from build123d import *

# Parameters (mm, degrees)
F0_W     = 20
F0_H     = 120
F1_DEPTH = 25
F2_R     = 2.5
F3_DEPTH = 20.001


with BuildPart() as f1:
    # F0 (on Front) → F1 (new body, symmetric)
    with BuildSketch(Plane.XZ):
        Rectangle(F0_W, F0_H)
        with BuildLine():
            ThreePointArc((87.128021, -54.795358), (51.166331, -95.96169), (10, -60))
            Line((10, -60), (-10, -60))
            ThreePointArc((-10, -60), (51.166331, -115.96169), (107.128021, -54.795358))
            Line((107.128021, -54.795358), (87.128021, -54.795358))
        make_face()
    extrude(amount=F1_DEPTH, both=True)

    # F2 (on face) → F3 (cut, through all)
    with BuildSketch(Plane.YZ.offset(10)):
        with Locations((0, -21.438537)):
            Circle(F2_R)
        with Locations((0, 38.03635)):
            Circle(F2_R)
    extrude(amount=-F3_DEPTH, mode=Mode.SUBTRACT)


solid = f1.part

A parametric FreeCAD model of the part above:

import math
import FreeCAD as App
import Part
import Sketcher

V = App.Vector
Q = App.Units.Quantity

doc = App.newDocument("Part")
params = doc.addObject("Spreadsheet::Sheet", "Params")
for row, (alias, value) in enumerate([
    ("sketch1_width", "20 mm"),
    ("sketch1_height", "120 mm"),
    ("pad1_length", "50 mm"),
    ("sketch2_diameter", "5 mm"),
], start=1):
    params.set(f"A{row}", alias)
    params.set(f"B{row}", "=" + value)
    params.setAlias(f"B{row}", alias)

body = doc.addObject("PartDesign::Body", "Body")

sketch1 = body.newObject("Sketcher::SketchObject", "Sketch")
sketch1.AttachmentSupport = (doc.getObject("XZ_Plane"), [""])
sketch1.MapMode = "FlatFace"
sketch1.addGeometry([
    Part.LineSegment(V(-10, 60, 0), V(-10, -60, 0)),
    Part.ArcOfCircle(Part.Circle(V(49, -57, 0), V(0, 0, 1), 59), math.radians(-177), math.radians(3)),
    Part.LineSegment(V(107, -55, 0), V(87, -55, 0)),
    Part.ArcOfCircle(Part.Circle(V(49, -57, 0), V(0, 0, 1), 39), math.radians(-176), math.radians(4)),
    Part.LineSegment(V(10, -60, 0), V(10, 60, 0)),
    Part.LineSegment(V(10, 60, 0), V(-10, 60, 0)),
], False)
sketch1.addConstraint([
    Sketcher.Constraint("Coincident", 0, 2, 1, 1),
    Sketcher.Constraint("Coincident", 1, 2, 2, 1),
    Sketcher.Constraint("Coincident", 2, 2, 3, 2),
    Sketcher.Constraint("Coincident", 3, 1, 4, 1),
    Sketcher.Constraint("Coincident", 4, 2, 5, 1),
    Sketcher.Constraint("Coincident", 5, 2, 0, 1),
    Sketcher.Constraint("Vertical", 0),
    Sketcher.Constraint("Horizontal", 2),
    Sketcher.Constraint("Vertical", 4),
    Sketcher.Constraint("Horizontal", 5),
    Sketcher.Constraint("Coincident", 3, 3, 1, 3),
    Sketcher.Constraint("Symmetric", 0, 2, 4, 2, -1, 1),
    Sketcher.Constraint("Horizontal", 0, 2, 3, 1),
    Sketcher.Constraint("Equal", 2, 5),
    Sketcher.Constraint("DistanceX", 2, 2, 2, 1, Q("20 mm")),
    Sketcher.Constraint("DistanceY", 0, 2, 0, 1, Q("120 mm")),
    Sketcher.Constraint("Radius", 1, Q("58.6218 mm")),
    Sketcher.Constraint("Radius", 3, Q("38.651714 mm")),
])
sketch1.setExpression("Constraints[14]", "Params.sketch1_width")
sketch1.setExpression("Constraints[15]", "Params.sketch1_height")
pad1 = body.newObject("PartDesign::Pad", "Pad")
pad1.Profile = sketch1
pad1.setExpression("Length", "Params.pad1_length")
pad1.Midplane = True

sketch2 = body.newObject("Sketcher::SketchObject", "Sketch001")
sketch2.AttachmentSupport = (doc.getObject("YZ_Plane"), [""])
sketch2.MapMode = "FlatFace"
sketch2.AttachmentOffset = App.Placement(V(0, 0, 10), App.Rotation())
sketch2.addGeometry([
    Part.Circle(V(0, -21.4, 0), V(0, 0, 1), 2.5),
    Part.Circle(V(0, 38, 0), V(0, 0, 1), 2.5),
], False)
sketch2.addConstraint([
    Sketcher.Constraint("Equal", 0, 1),
    Sketcher.Constraint("PointOnObject", 0, 3, -2),
    Sketcher.Constraint("PointOnObject", 1, 3, -2),
    Sketcher.Constraint("Diameter", 0, Q("5 mm")),
    Sketcher.Constraint("DistanceY", -1, 1, 1, 3, Q("38.03635 mm")),
    Sketcher.Constraint("DistanceY", 0, 3, -1, 1, Q("21.438537 mm")),
])
sketch2.setExpression("Constraints[3]", "Params.sketch2_diameter")
pocket1 = body.newObject("PartDesign::Pocket", "Pocket")
pocket1.Profile = sketch2
pocket1.Type = "ThroughAll"

doc.recompute()
